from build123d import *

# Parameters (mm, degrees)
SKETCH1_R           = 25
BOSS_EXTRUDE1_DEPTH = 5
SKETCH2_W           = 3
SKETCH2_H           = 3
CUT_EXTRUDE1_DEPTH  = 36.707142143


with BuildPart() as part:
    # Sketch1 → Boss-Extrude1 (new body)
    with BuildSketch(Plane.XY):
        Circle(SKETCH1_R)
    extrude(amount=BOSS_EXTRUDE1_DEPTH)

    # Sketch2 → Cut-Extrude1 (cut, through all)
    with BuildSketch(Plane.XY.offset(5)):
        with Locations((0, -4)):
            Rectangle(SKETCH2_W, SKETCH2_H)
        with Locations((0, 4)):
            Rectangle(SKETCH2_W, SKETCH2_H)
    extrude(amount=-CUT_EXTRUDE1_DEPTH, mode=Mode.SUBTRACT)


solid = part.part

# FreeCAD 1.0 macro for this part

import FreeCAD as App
import Part
import Sketcher

V = App.Vector

doc = App.newDocument("Part")
body = doc.addObject("PartDesign::Body", "Body")

# Sketch on XY plane
sketch1 = doc.addObject("Sketcher::SketchObject", "Sketch")
body.addObject(sketch1)
sketch1.AttachmentSupport = (doc.XY_Plane, [""])
sketch1.MapMode = "FlatFace"
sketch1.addGeometry(Part.Circle(V(0, 0, 0), V(0, 0, 1), 25), False)
sketch1.addConstraint([
    Sketcher.Constraint("Coincident", 0, 3, -1, 1),
    Sketcher.Constraint("Diameter", 0, 50.0),
])
pad1 = doc.addObject("PartDesign::Pad", "Pad")
body.addObject(pad1)
pad1.Profile = sketch1
pad1.Length = 5

# Sketch on XY plane
sketch2 = doc.addObject("Sketcher::SketchObject", "Sketch001")
body.addObject(sketch2)
sketch2.AttachmentSupport = (doc.XY_Plane, [""])
sketch2.MapMode = "FlatFace"
sketch2.AttachmentOffset = App.Placement(V(0, 0, 5), App.Rotation())
sketch2.addGeometry([
    Part.LineSegment(V(-1.5, -2.5, 0), V(-1.5, -5.5, 0)),  # 0
    Part.LineSegment(V(-1.5, -5.5, 0), V(1.5, -5.5, 0)),  # 1
    Part.LineSegment(V(1.5, -5.5, 0), V(1.5, -2.5, 0)),  # 2
    Part.LineSegment(V(1.5, -2.5, 0), V(-1.5, -2.5, 0)),  # 3
    Part.LineSegment(V(-1.5, 5.5, 0), V(-1.5, 2.5, 0)),  # 4
    Part.LineSegment(V(-1.5, 2.5, 0), V(1.5, 2.5, 0)),  # 5
    Part.LineSegment(V(1.5, 2.5, 0), V(1.5, 5.5, 0)),  # 6
    Part.LineSegment(V(1.5, 5.5, 0), V(-1.5, 5.5, 0)),  # 7
], False)
sketch2.addConstraint([
    Sketcher.Constraint("Coincident", 0, 2, 1, 1),
    Sketcher.Constraint("Coincident", 1, 2, 2, 1),
    Sketcher.Constraint("Coincident", 2, 2, 3, 1),
    Sketcher.Constraint("Coincident", 3, 2, 0, 1),
    Sketcher.Constraint("Coincident", 4, 2, 5, 1),
    Sketcher.Constraint("Coincident", 5, 2, 6, 1),
    Sketcher.Constraint("Coincident", 6, 2, 7, 1),
    Sketcher.Constraint("Coincident", 7, 2, 4, 1),
    Sketcher.Constraint("Vertical", 0),
    Sketcher.Constraint("Horizontal", 1),
    Sketcher.Constraint("Vertical", 2),
    Sketcher.Constraint("Horizontal", 3),
    Sketcher.Constraint("Vertical", 4),
    Sketcher.Constraint("Horizontal", 5),
    Sketcher.Constraint("Vertical", 6),
    Sketcher.Constraint("Horizontal", 7),
    Sketcher.Constraint("Symmetric", 2, 2, 4, 2, -1, 1),
    Sketcher.Constraint("Symmetric", 0, 2, 6, 2, -1, 1),
    Sketcher.Constraint("Vertical", 3, 2, 4, 2),
    Sketcher.Constraint("Equal", 7, 0),
    Sketcher.Constraint("DistanceX", 1, 1, 1, 2, 3.0),
    Sketcher.Constraint("DistanceY", 3, 2, 4, 2, 5.0),
])
pocket1 = doc.addObject("PartDesign::Pocket", "Pocket")
body.addObject(pocket1)
pocket1.Profile = sketch2
pocket1.Type = "ThroughAll"

doc.recompute()
